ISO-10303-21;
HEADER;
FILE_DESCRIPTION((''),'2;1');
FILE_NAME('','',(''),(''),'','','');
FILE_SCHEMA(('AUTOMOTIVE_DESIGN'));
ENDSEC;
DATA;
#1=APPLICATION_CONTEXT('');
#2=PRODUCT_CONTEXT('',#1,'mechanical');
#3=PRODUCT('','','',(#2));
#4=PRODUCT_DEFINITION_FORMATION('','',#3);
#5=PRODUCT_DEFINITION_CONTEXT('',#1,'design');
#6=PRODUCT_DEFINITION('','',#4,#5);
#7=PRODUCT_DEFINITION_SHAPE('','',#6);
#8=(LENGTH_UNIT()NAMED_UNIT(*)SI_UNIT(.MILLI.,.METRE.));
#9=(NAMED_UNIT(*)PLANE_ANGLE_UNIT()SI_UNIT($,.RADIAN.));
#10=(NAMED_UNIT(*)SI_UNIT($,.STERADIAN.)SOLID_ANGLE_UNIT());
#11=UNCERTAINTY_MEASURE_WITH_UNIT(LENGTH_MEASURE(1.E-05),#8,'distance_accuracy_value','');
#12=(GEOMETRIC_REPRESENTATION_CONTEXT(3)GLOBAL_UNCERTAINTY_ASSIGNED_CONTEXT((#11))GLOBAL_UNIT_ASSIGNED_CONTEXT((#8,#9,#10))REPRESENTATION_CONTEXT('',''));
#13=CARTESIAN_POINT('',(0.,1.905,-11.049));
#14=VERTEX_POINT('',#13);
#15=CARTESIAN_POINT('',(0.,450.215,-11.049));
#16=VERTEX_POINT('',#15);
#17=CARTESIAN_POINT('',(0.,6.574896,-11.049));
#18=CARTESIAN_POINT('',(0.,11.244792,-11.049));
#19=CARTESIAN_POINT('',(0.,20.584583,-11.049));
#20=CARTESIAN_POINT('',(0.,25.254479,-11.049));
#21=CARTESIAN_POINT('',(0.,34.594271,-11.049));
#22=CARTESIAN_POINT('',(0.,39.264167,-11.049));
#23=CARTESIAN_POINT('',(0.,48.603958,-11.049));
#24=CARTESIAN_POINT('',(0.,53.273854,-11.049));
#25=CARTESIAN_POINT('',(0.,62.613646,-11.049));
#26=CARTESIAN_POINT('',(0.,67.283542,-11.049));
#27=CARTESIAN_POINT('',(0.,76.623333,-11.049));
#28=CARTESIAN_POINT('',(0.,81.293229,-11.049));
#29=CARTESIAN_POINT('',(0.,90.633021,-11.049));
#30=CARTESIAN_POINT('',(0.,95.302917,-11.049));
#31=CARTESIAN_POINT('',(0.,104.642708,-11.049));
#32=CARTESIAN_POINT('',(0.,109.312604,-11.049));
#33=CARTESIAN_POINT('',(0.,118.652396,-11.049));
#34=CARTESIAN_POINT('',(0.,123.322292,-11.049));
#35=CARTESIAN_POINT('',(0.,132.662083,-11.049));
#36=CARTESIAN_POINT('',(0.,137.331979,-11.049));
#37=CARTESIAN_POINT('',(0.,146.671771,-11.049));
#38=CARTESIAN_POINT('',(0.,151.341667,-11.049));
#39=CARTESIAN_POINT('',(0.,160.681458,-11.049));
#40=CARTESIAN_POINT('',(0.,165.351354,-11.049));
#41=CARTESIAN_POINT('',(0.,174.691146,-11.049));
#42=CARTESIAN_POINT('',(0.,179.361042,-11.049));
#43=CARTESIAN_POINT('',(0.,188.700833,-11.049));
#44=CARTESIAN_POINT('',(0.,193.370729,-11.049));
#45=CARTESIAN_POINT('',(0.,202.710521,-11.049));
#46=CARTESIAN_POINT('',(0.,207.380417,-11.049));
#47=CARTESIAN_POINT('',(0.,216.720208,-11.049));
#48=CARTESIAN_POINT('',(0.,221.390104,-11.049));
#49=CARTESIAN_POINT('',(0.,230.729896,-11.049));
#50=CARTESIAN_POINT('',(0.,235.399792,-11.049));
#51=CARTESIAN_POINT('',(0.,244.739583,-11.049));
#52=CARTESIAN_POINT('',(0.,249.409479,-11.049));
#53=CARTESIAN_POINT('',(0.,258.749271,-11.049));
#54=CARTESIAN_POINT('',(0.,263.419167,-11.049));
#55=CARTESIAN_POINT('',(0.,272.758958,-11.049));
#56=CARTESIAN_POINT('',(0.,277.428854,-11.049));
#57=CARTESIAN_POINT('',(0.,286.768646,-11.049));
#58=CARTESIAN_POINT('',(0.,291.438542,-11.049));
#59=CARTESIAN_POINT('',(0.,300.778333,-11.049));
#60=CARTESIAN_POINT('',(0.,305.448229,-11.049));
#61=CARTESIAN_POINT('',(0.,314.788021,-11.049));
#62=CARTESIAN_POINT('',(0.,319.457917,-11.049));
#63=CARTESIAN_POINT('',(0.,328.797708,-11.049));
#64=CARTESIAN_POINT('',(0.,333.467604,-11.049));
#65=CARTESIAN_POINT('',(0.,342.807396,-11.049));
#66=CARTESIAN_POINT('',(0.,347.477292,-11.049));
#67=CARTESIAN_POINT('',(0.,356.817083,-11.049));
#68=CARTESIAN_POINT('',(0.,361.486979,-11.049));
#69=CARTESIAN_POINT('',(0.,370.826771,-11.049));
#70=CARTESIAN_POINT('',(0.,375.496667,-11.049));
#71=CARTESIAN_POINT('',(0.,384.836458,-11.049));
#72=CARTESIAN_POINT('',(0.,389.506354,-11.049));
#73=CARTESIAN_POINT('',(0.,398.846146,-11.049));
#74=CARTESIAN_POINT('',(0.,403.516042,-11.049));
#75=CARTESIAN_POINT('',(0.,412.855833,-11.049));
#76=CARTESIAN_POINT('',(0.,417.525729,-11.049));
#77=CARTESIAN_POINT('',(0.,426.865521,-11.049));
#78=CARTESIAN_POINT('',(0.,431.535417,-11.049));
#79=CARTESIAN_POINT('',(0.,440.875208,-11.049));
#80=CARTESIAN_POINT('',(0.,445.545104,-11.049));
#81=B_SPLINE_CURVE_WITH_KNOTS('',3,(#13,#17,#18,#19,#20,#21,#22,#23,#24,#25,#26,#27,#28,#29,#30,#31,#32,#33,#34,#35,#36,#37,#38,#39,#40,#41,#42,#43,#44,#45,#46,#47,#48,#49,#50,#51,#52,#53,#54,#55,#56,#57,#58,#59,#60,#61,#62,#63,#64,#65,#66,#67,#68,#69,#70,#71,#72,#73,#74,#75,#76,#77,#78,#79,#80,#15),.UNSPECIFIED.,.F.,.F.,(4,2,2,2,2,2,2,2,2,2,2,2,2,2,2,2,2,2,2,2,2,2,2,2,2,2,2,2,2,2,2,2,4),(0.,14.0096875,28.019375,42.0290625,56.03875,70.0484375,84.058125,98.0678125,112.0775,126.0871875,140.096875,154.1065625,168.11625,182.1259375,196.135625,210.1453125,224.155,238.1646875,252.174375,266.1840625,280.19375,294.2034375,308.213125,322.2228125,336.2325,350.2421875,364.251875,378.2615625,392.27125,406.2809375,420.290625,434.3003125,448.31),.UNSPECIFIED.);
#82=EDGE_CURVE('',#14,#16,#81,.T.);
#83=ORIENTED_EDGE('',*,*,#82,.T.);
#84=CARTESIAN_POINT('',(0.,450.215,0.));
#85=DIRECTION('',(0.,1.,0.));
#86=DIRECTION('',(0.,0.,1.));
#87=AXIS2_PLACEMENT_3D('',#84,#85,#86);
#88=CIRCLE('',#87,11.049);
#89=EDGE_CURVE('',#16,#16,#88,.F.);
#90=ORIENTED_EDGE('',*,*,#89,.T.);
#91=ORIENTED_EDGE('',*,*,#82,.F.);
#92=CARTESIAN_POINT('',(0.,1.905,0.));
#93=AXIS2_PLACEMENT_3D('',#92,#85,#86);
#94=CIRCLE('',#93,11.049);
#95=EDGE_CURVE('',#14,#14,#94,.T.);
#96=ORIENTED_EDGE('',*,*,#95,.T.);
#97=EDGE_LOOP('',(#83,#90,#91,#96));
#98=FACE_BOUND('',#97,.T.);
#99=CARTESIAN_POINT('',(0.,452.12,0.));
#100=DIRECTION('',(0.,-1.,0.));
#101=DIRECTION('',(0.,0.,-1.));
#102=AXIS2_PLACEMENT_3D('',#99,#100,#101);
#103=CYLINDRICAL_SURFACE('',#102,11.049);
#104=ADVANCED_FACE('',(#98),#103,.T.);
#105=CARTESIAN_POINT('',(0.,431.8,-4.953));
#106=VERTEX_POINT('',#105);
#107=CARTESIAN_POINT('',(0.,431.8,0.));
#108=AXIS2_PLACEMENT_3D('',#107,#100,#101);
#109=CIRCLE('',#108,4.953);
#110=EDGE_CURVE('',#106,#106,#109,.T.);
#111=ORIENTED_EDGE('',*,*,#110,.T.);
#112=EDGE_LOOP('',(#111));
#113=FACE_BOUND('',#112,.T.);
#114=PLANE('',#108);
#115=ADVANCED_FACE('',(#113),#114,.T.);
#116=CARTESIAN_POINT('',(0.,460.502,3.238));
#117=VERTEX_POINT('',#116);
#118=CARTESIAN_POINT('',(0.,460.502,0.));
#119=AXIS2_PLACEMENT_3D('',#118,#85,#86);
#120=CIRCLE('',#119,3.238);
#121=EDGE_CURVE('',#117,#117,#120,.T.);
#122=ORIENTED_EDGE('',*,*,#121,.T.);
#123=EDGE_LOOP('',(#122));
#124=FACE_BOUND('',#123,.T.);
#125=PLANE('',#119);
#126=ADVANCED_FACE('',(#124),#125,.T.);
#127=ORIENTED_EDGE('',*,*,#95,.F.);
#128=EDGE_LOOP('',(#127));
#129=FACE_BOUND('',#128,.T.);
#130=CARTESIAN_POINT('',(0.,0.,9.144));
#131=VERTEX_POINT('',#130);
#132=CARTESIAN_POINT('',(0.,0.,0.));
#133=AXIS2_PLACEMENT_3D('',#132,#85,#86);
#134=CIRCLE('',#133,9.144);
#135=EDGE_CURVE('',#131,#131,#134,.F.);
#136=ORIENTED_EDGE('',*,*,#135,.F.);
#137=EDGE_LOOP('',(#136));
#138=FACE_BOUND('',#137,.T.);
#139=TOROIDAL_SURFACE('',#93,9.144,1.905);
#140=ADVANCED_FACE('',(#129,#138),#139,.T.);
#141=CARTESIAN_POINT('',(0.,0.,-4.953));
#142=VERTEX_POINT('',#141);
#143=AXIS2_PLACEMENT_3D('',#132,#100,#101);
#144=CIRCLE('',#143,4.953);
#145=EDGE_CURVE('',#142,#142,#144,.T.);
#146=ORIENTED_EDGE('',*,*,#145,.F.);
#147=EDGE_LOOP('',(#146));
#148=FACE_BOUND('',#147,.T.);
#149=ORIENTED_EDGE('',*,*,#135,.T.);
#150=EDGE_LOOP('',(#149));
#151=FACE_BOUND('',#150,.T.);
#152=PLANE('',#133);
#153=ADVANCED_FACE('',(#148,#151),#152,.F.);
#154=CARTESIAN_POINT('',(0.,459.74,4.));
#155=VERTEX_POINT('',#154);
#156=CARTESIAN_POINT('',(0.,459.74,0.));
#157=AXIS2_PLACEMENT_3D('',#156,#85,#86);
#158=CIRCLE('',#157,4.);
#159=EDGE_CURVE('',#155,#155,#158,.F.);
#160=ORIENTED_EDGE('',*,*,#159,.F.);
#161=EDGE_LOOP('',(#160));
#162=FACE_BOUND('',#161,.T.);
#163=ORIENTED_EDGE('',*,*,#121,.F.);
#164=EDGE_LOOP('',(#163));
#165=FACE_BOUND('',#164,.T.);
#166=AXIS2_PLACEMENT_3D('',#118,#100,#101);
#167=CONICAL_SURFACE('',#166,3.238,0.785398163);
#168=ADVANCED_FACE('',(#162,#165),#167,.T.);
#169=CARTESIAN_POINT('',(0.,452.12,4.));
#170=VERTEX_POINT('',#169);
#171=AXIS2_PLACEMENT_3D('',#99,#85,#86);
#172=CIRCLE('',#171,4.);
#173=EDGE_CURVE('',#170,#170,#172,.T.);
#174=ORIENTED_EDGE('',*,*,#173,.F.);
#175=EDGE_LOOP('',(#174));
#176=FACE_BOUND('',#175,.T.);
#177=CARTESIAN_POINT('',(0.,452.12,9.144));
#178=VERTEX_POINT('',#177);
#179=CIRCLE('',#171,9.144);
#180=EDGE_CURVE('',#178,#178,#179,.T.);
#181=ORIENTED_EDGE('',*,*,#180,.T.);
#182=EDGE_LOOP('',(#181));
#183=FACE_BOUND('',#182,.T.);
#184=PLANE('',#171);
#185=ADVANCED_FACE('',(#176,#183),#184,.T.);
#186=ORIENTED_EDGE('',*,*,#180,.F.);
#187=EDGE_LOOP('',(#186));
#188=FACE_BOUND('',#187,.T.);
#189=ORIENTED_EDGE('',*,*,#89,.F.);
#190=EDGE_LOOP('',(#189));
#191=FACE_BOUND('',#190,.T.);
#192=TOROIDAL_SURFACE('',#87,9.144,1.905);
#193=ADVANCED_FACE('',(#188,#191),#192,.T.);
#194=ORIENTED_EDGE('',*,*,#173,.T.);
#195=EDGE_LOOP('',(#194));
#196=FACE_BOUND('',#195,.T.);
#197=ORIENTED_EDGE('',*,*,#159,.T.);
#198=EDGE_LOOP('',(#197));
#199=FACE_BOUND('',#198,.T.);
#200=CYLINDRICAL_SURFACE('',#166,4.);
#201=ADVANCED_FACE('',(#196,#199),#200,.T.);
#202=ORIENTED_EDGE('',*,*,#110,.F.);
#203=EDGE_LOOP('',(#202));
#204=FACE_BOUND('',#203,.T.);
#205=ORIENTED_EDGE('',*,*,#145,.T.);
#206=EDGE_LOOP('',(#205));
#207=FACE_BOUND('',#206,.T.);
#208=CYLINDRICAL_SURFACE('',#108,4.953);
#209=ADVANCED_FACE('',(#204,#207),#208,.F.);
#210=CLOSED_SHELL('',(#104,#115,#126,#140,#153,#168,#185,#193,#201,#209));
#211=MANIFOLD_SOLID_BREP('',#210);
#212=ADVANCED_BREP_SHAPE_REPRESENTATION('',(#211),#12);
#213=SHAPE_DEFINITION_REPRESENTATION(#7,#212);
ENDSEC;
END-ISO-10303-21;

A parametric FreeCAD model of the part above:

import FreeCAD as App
import Part
import Sketcher
Q = App.Units.Quantity


def edges_at(feature, points):
    """Names of the edges that pass closest to the given points."""
    edges = feature.Shape.Edges
    near = lambda p: min(range(len(edges)), key=lambda i: edges[i].distToShape(Part.Vertex(*p))[0])
    return sorted({f"Edge{near(p) + 1}" for p in points})

doc = App.newDocument("Part")
body = doc.addObject("PartDesign::Body", "Body")

# Sketch on XZ plane
sketch1 = body.newObject("Sketcher::SketchObject", "Sketch")
sketch1.AttachmentSupport = (doc.getObject("XZ_Plane"), [""])
sketch1.MapMode = "FlatFace"
sketch1.addGeometry(Part.Circle(App.Vector(0, 0, 0), App.Vector(0, 0, 1), 11.049), False)
sketch1.addConstraint(Sketcher.Constraint("Coincident", 0, 3, -1, 1))
sketch1.addConstraint(Sketcher.Constraint("Diameter", 0, Q("0.87 in")))
pad1 = body.newObject("PartDesign::Pad", "Pad")
pad1.Profile = sketch1
pad1.Length = Q("17.8 in")
pad1.Reversed = True

# Sketch on XZ plane
sketch2 = body.newObject("Sketcher::SketchObject", "Sketch001")
sketch2.AttachmentSupport = (doc.getObject("XZ_Plane"), [""])
sketch2.MapMode = "FlatFace"
sketch2.AttachmentOffset = App.Placement(App.Vector(0, 0, -17.8 * 25.4), App.Rotation())
sketch2.addGeometry(Part.Circle(App.Vector(0, 0, 0), App.Vector(0, 0, 1), 4), False)
sketch2.addConstraint(Sketcher.Constraint("Coincident", 0, 3, -1, 1))
sketch2.addConstraint(Sketcher.Constraint("Diameter", 0, Q("8 mm")))
pad2 = body.newObject("PartDesign::Pad", "Pad001")
pad2.Profile = sketch2
pad2.Length = Q("0.33 in")
pad2.Reversed = True
doc.recompute()

chamfer = body.newObject("PartDesign::Chamfer", "Chamfer")
chamfer.Base = (pad2, edges_at(pad2, [(0, 460.502, -4)]))
chamfer.Size = Q("0.03 in")
doc.recompute()

fillet = body.newObject("PartDesign::Fillet", "Fillet")
fillet.Base = (chamfer, edges_at(chamfer, [(0, 0, 11.049), (0, 452.12, 11.049)]))
fillet.Radius = Q("0.075 in")

# Sketch on XZ plane
sketch3 = body.newObject("Sketcher::SketchObject", "Sketch002")
sketch3.AttachmentSupport = (doc.getObject("XZ_Plane"), [""])
sketch3.MapMode = "FlatFace"
sketch3.addGeometry(Part.Circle(App.Vector(0, 0, 0), App.Vector(0, 0, 1), 4.953), False)
sketch3.addConstraint(Sketcher.Constraint("Coincident", 0, 3, -1, 1))
sketch3.addConstraint(Sketcher.Constraint("Diameter", 0, Q("0.39 in")))
pocket1 = body.newObject("PartDesign::Pocket", "Pocket")
pocket1.Profile = sketch3
pocket1.Length = Q("17 in")

doc.recompute()
